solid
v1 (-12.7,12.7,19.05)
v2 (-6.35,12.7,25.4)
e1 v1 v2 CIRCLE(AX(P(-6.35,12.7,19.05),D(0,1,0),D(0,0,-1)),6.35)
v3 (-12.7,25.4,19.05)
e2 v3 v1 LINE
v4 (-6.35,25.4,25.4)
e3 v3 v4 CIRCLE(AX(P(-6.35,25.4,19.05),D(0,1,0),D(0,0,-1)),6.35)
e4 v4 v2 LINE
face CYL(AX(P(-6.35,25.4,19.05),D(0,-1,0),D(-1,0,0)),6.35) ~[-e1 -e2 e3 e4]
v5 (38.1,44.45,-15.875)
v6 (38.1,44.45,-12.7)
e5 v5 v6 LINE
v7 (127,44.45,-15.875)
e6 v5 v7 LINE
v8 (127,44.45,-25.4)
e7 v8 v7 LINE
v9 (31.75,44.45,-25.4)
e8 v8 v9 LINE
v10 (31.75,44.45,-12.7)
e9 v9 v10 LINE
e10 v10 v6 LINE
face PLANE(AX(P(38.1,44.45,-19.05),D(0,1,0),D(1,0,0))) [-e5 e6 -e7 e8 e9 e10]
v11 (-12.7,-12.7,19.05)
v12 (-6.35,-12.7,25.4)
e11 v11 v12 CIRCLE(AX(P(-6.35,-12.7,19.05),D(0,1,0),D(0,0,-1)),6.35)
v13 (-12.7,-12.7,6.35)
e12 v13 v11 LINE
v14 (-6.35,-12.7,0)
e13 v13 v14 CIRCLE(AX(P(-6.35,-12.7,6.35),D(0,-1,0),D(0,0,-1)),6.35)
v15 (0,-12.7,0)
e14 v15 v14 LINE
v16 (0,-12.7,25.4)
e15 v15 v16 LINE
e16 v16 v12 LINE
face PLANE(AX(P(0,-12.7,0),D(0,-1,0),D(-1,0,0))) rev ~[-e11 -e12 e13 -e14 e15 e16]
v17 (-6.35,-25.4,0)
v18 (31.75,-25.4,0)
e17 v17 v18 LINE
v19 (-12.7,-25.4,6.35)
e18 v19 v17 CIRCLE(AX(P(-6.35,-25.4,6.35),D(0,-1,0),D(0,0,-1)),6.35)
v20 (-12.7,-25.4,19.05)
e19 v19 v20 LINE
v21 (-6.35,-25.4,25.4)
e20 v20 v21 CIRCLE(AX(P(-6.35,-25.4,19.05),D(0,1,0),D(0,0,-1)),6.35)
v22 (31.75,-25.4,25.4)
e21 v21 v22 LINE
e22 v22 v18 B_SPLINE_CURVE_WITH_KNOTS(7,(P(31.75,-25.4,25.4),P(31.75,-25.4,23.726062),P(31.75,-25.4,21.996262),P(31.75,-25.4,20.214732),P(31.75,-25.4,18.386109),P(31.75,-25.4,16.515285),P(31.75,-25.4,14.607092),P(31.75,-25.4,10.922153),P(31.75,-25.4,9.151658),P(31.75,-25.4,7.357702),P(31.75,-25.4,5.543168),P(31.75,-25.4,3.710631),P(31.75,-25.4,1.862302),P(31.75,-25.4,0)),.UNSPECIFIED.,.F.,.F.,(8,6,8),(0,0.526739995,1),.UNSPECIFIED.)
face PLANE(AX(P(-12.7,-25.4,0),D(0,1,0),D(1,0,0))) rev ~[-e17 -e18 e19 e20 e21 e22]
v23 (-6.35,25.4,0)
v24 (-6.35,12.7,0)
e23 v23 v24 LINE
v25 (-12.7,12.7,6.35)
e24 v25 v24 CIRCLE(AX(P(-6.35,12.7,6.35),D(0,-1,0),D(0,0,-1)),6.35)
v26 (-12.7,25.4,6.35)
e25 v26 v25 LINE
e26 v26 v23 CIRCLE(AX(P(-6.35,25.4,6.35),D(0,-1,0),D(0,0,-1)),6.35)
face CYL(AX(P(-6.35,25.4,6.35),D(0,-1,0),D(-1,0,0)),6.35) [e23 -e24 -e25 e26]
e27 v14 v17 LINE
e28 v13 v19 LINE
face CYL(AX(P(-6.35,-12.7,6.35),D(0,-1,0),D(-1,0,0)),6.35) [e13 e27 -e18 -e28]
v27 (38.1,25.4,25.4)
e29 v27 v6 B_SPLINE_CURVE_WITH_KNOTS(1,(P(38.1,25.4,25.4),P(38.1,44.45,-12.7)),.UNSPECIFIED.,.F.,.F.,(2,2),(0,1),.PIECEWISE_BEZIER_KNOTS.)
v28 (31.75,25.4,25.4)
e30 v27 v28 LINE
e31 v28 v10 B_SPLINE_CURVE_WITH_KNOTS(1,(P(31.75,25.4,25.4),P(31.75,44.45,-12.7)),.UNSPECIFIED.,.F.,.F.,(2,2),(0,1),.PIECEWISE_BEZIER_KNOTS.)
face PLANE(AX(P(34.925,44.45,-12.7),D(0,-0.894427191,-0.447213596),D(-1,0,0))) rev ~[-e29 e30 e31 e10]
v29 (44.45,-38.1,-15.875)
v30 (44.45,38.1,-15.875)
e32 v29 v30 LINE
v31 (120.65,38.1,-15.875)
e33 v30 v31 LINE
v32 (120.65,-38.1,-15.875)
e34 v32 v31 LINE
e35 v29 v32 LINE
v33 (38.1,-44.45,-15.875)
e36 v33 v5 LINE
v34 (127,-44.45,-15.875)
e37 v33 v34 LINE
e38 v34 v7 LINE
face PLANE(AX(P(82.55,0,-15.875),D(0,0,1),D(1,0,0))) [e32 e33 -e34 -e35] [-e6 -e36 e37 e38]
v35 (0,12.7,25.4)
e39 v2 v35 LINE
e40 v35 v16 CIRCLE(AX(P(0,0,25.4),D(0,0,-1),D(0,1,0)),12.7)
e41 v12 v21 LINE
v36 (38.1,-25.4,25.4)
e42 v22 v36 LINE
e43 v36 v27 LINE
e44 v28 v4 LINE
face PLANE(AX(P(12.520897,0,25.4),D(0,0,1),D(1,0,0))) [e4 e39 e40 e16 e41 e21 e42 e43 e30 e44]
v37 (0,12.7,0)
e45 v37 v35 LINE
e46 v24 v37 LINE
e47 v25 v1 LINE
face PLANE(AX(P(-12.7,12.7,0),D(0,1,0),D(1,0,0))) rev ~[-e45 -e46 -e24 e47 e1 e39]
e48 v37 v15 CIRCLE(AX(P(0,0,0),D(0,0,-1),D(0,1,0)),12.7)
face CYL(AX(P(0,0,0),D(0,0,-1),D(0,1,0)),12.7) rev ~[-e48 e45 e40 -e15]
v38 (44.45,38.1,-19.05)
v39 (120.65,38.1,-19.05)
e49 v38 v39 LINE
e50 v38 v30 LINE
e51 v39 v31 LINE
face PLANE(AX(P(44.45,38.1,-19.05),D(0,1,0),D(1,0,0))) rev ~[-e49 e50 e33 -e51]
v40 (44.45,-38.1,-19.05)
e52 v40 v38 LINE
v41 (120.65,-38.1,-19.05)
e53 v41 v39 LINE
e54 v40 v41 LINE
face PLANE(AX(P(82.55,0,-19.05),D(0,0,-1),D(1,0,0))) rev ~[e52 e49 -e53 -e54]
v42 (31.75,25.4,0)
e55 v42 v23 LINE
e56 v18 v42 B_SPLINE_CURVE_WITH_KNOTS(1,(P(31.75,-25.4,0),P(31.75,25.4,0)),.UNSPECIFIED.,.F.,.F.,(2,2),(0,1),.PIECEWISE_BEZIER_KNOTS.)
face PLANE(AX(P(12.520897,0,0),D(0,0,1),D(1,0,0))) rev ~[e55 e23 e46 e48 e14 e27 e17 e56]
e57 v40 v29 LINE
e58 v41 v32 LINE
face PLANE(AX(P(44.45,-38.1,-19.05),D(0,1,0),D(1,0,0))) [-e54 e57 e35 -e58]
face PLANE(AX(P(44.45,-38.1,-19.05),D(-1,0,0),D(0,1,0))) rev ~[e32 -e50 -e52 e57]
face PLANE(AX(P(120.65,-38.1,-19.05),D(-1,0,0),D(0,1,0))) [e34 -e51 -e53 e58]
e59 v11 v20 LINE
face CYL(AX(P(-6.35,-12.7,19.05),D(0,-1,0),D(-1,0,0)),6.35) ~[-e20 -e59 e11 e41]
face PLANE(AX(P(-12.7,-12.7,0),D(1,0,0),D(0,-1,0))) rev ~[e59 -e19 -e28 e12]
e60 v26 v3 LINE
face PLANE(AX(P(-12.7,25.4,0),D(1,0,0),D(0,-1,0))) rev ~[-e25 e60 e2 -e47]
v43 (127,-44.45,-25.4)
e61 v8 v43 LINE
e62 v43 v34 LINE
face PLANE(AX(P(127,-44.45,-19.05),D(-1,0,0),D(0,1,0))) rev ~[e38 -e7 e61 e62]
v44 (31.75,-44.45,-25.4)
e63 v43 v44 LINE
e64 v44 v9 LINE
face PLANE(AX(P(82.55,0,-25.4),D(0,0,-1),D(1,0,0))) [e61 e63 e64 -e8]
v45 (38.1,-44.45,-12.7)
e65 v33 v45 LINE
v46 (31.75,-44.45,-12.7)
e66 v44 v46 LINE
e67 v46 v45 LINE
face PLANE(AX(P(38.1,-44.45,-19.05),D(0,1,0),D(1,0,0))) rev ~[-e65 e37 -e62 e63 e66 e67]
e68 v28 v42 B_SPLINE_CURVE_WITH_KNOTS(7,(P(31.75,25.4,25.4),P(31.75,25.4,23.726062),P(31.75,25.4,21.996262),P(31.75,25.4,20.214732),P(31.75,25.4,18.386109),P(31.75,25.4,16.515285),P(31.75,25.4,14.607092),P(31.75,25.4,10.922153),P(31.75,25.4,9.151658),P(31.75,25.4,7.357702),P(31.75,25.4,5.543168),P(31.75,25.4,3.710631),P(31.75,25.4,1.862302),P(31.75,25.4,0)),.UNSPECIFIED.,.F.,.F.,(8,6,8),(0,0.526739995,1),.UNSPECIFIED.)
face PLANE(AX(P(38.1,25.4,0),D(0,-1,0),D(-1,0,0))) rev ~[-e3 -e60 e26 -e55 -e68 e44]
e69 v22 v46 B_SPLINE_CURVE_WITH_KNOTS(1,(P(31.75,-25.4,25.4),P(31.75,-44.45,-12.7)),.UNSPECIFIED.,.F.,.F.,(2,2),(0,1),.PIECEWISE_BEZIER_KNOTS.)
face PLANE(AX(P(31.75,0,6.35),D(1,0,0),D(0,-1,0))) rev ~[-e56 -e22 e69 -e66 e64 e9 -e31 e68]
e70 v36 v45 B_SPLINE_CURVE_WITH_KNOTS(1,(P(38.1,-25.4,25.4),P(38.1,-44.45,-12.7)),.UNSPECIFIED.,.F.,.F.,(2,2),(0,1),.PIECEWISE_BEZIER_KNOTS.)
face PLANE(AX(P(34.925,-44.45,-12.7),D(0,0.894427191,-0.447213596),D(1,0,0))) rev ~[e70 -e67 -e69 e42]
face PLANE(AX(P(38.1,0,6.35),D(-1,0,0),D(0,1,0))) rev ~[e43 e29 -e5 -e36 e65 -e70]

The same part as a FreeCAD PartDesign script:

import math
import FreeCAD as App
import Part
import Sketcher
Q = App.Units.Quantity


def edges_at(feature, points):
    """Names of the edges that pass closest to the given points."""
    edges = feature.Shape.Edges
    near = lambda p: min(range(len(edges)), key=lambda i: edges[i].distToShape(Part.Vertex(*p))[0])
    return sorted({f"Edge{near(p) + 1}" for p in points})


def add_polygon(sketch, points):
    """Adds a closed chain of lines whose ends are joined by coincident constraints."""
    first, n = sketch.GeometryCount, len(points)
    for a, b in zip(points, points[1:] + points[:1]):
        sketch.addGeometry(Part.LineSegment(App.Vector(*a, 0), App.Vector(*b, 0)), False)
    for i in range(n):
        sketch.addConstraint(Sketcher.Constraint("Coincident", first + i, 2, first + (i + 1) % n, 1))

doc = App.newDocument("Part")
body = doc.addObject("PartDesign::Body", "Body")

sketch1 = body.newObject("Sketcher::SketchObject", "Sketch")
sketch1.AttachmentSupport = (doc.getObject("XY_Plane"), [""])
sketch1.MapMode = "FlatFace"
sketch1.addGeometry(Part.ArcOfCircle(Part.Circle(App.Vector(0, 0, 0), App.Vector(0, 0, 1), 13), math.radians(-90), math.radians(90)), False)
sketch1.addGeometry(Part.LineSegment(App.Vector(0, -13, 0), App.Vector(-13, -13, 0)), False)
sketch1.addGeometry(Part.LineSegment(App.Vector(-13, -13, 0), App.Vector(-13, -25, 0)), False)
sketch1.addGeometry(Part.LineSegment(App.Vector(-13, -25, 0), App.Vector(38, -25, 0)), False)
sketch1.addGeometry(Part.LineSegment(App.Vector(38, -25, 0), App.Vector(38, 25, 0)), False)
sketch1.addGeometry(Part.LineSegment(App.Vector(38, 25, 0), App.Vector(-13, 25, 0)), False)
sketch1.addGeometry(Part.LineSegment(App.Vector(-13, 25, 0), App.Vector(-13, 13, 0)), False)
sketch1.addGeometry(Part.LineSegment(App.Vector(-13, 13, 0), App.Vector(0, 13, 0)), False)
sketch1.addConstraint(Sketcher.Constraint("Tangent", 0, 1, 1, 1))
sketch1.addConstraint(Sketcher.Constraint("Coincident", 1, 2, 2, 1))
sketch1.addConstraint(Sketcher.Constraint("Coincident", 2, 2, 3, 1))
sketch1.addConstraint(Sketcher.Constraint("Coincident", 3, 2, 4, 1))
sketch1.addConstraint(Sketcher.Constraint("Coincident", 4, 2, 5, 1))
sketch1.addConstraint(Sketcher.Constraint("Coincident", 5, 2, 6, 1))
sketch1.addConstraint(Sketcher.Constraint("Coincident", 6, 2, 7, 1))
sketch1.addConstraint(Sketcher.Constraint("Tangent", 7, 2, 0, 2))
sketch1.addConstraint(Sketcher.Constraint("Horizontal", 1))
sketch1.addConstraint(Sketcher.Constraint("Vertical", 2))
sketch1.addConstraint(Sketcher.Constraint("Horizontal", 3))
sketch1.addConstraint(Sketcher.Constraint("Vertical", 4))
sketch1.addConstraint(Sketcher.Constraint("Horizontal", 5))
sketch1.addConstraint(Sketcher.Constraint("Vertical", 6))
sketch1.addConstraint(Sketcher.Constraint("Horizontal", 7))
sketch1.addConstraint(Sketcher.Constraint("Coincident", 0, 3, -1, 1))
sketch1.addConstraint(Sketcher.Constraint("Symmetric", 2, 2, 5, 2, -1))
sketch1.addConstraint(Sketcher.Constraint("Equal", 7, 2))
sketch1.addConstraint(Sketcher.Constraint("Equal", 5, 4))
sketch1.addConstraint(Sketcher.Constraint("Radius", 0, Q("0.5 in")))
sketch1.addConstraint(Sketcher.Constraint("DistanceX", 3, 1, 3, 2, Q("2 in")))
pad1 = body.newObject("PartDesign::Pad", "Pad")
pad1.Profile = sketch1
pad1.Length = Q("1 in")
doc.recompute()

fillet = body.newObject("PartDesign::Fillet", "Fillet")
fillet.Base = (pad1, edges_at(pad1, [
    (-12.7, -19.05, 25.4),
    (-12.7, 19.05, 25.4),
    (-12.7, -19.05, 0),
    (-12.7, 19.05, 0),
]))
fillet.Radius = Q("0.25 in")
body2 = doc.addObject("PartDesign::Body", "Body001")

sketch2 = body2.newObject("Sketcher::SketchObject", "Sketch001")
sketch2.AttachmentSupport = (doc.getObject("XY_Plane001"), [""])
sketch2.MapMode = "FlatFace"
sketch2.AttachmentOffset = App.Placement(App.Vector(0, 0, -1 * 25.4), App.Rotation())
add_polygon(sketch2, [(32, 44), (32, -44), (38, -44), (38, 44)])
sketch2.addConstraint(Sketcher.Constraint("Vertical", 0))
sketch2.addConstraint(Sketcher.Constraint("Horizontal", 1))
sketch2.addConstraint(Sketcher.Constraint("Vertical", 2))
sketch2.addConstraint(Sketcher.Constraint("Horizontal", 3))
sketch2.addConstraint(Sketcher.Constraint("DistanceY", 0, 2, 0, 1, Q("3.5 in")))
sketch2.addConstraint(Sketcher.Constraint("DistanceX", 1, 1, 1, 2, Q("0.25 in")))
sketch2.addConstraint(Sketcher.Constraint("DistanceX", -1, 1, 1, 2, Q("1.5 in")))
sketch2.addConstraint(Sketcher.Constraint("DistanceY", 0, 2, -1, 1, Q("1.75 in")))
pad2 = body2.newObject("PartDesign::Pad", "Pad001")
pad2.Profile = sketch2
pad2.Length = Q("0.5 in")
body.AllowCompound = True
doc.recompute()

boolean = body.newObject("PartDesign::Boolean", "Boolean")
boolean.Type = "Fuse"
boolean.addObjects([body2])

sketch3 = body.newObject("Sketcher::SketchObject", "Sketch002")
sketch3.AttachmentSupport = (doc.getObject("XY_Plane"), [""])
sketch3.MapMode = "FlatFace"
sketch3.AttachmentOffset = App.Placement(App.Vector(0, 0, 1 * 25.4), App.Rotation())
add_polygon(sketch3, [(32, 25), (32, -25), (38, -25), (38, 25)])
sketch3.addConstraint(Sketcher.Constraint("Vertical", 0))
sketch3.addConstraint(Sketcher.Constraint("Horizontal", 1))
sketch3.addConstraint(Sketcher.Constraint("Vertical", 2))
sketch3.addConstraint(Sketcher.Constraint("Horizontal", 3))
sketch3.addConstraint(Sketcher.Constraint("DistanceY", 0, 2, 0, 1, Q("2 in")))
sketch3.addConstraint(Sketcher.Constraint("DistanceY", 0, 2, -1, 1, Q("1 in")))
sketch3.addConstraint(Sketcher.Constraint("DistanceX", 1, 1, 1, 2, Q("0.25 in")))
sketch3.addConstraint(Sketcher.Constraint("DistanceX", -1, 1, 1, 2, Q("1.5 in")))

sketch4 = body.newObject("Sketcher::SketchObject", "Sketch003")
sketch4.AttachmentSupport = (doc.getObject("XY_Plane"), [""])
sketch4.MapMode = "FlatFace"
sketch4.AttachmentOffset = App.Placement(App.Vector(0, 0, -0.5 * 25.4), App.Rotation())
add_polygon(sketch4, [(32, 44), (32, -44), (38, -44), (38, 44)])
sketch4.addConstraint(Sketcher.Constraint("Vertical", 0))
sketch4.addConstraint(Sketcher.Constraint("Horizontal", 1))
sketch4.addConstraint(Sketcher.Constraint("Vertical", 2))
sketch4.addConstraint(Sketcher.Constraint("Horizontal", 3))
sketch4.addConstraint(Sketcher.Constraint("DistanceY", 0, 2, 0, 1, Q("3.5 in")))
sketch4.addConstraint(Sketcher.Constraint("DistanceX", 1, 1, 1, 2, Q("0.25 in")))
sketch4.addConstraint(Sketcher.Constraint("DistanceX", -1, 1, 1, 2, Q("1.5 in")))
sketch4.addConstraint(Sketcher.Constraint("DistanceY", 0, 2, -1, 1, Q("1.75 in")))

additiveloft = body.newObject("PartDesign::AdditiveLoft", "AdditiveLoft")
additiveloft.Profile = sketch3
additiveloft.Sections = [sketch4]

sketch5 = body.newObject("Sketcher::SketchObject", "Sketch004")
sketch5.AttachmentSupport = (doc.getObject("XY_Plane"), [""])
sketch5.MapMode = "FlatFace"
sketch5.AttachmentOffset = App.Placement(App.Vector(0, 0, -1 * 25.4), App.Rotation())
add_polygon(sketch5, [(38, -44), (38, 44), (127, 44), (127, -44)])
sketch5.addConstraint(Sketcher.Constraint("Vertical", 0))
sketch5.addConstraint(Sketcher.Constraint("Horizontal", 1))
sketch5.addConstraint(Sketcher.Constraint("Vertical", 2))
sketch5.addConstraint(Sketcher.Constraint("Horizontal", 3))
sketch5.addConstraint(Sketcher.Constraint("Equal", 3, 0))
sketch5.addConstraint(Sketcher.Constraint("DistanceX", 1, 1, 1, 2, Q("3.5 in")))
sketch5.addConstraint(Sketcher.Constraint("DistanceX", -1, 1, 1, 2, Q("5 in")))
sketch5.addConstraint(Sketcher.Constraint("DistanceY", -1, 1, 0, 2, Q("1.75 in")))
pad3 = body.newObject("PartDesign::Pad", "Pad002")
pad3.Profile = sketch5
pad3.Length = Q("0.25 in")

sketch6 = body.newObject("Sketcher::SketchObject", "Sketch005")
sketch6.AttachmentSupport = (doc.getObject("XY_Plane"), [""])
sketch6.MapMode = "FlatFace"
sketch6.AttachmentOffset = App.Placement(App.Vector(0, 0, -0.75 * 25.4), App.Rotation())
add_polygon(sketch6, [(38, 44), (38, -44), (127, -44), (127, 44)])
add_polygon(sketch6, [(121, -38), (44, -38), (44, 38), (121, 38)])
sketch6.addConstraint(Sketcher.Constraint("Vertical", 0))
sketch6.addConstraint(Sketcher.Constraint("Horizontal", 1))
sketch6.addConstraint(Sketcher.Constraint("Vertical", 2))
sketch6.addConstraint(Sketcher.Constraint("Horizontal", 3))
sketch6.addConstraint(Sketcher.Constraint("Horizontal", 4))
sketch6.addConstraint(Sketcher.Constraint("Vertical", 5))
sketch6.addConstraint(Sketcher.Constraint("Horizontal", 6))
sketch6.addConstraint(Sketcher.Constraint("Vertical", 7))
sketch6.addConstraint(Sketcher.Constraint("Equal", 3, 0))
sketch6.addConstraint(Sketcher.Constraint("Equal", 6, 5))
sketch6.addConstraint(Sketcher.Constraint("DistanceX", 4, 2, 4, 1, Q("3 in")))
sketch6.addConstraint(Sketcher.Constraint("DistanceX", 1, 1, 1, 2, Q("3.5 in")))
sketch6.addConstraint(Sketcher.Constraint("DistanceX", -1, 1, 1, 2, Q("5 in")))
sketch6.addConstraint(Sketcher.Constraint("DistanceY", 4, 2, -1, 1, Q("1.5 in")))
sketch6.addConstraint(Sketcher.Constraint("DistanceY", 0, 2, -1, 1, Q("1.75 in")))
sketch6.addConstraint(Sketcher.Constraint("DistanceX", -1, 1, 4, 2, Q("1.75 in")))
pad4 = body.newObject("PartDesign::Pad", "Pad003")
pad4.Profile = sketch6
pad4.Length = Q("0.125 in")

doc.recompute()
